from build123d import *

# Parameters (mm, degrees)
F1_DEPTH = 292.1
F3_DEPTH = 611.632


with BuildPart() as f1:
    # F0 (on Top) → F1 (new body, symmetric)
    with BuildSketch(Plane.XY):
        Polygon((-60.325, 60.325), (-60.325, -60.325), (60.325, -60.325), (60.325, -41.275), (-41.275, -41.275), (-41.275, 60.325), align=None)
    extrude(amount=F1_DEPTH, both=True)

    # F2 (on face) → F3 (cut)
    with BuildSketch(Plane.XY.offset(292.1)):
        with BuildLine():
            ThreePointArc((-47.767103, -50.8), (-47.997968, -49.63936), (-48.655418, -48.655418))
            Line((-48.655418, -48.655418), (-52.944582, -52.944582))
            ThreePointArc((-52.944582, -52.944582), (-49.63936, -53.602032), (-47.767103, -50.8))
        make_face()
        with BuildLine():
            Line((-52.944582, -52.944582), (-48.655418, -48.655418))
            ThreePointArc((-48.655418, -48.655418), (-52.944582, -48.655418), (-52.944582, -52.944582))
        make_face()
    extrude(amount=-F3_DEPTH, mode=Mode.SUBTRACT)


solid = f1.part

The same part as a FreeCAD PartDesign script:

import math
import FreeCAD as App
import Part
import Sketcher

V = App.Vector
Q = App.Units.Quantity

doc = App.newDocument("Part")
body = doc.addObject("PartDesign::Body", "Body")

sketch1 = body.newObject("Sketcher::SketchObject", "Sketch")
sketch1.AttachmentSupport = (doc.getObject("XY_Plane"), [""])
sketch1.MapMode = "FlatFace"
sketch1.addGeometry(Part.LineSegment(V(-60, 60, 0), V(-60, -60, 0)), False)
sketch1.addGeometry(Part.LineSegment(V(-60, -60, 0), V(60, -60, 0)), False)
sketch1.addGeometry(Part.LineSegment(V(60, -60, 0), V(60, -41, 0)), False)
sketch1.addGeometry(Part.LineSegment(V(60, -41, 0), V(-41, -41, 0)), False)
sketch1.addGeometry(Part.LineSegment(V(-41, -41, 0), V(-41, 60, 0)), False)
sketch1.addGeometry(Part.LineSegment(V(-41, 60, 0), V(-60, 60, 0)), False)
sketch1.addConstraint(Sketcher.Constraint("Coincident", 0, 2, 1, 1))
sketch1.addConstraint(Sketcher.Constraint("Coincident", 1, 2, 2, 1))
sketch1.addConstraint(Sketcher.Constraint("Coincident", 2, 2, 3, 1))
sketch1.addConstraint(Sketcher.Constraint("Coincident", 3, 2, 4, 1))
sketch1.addConstraint(Sketcher.Constraint("Coincident", 4, 2, 5, 1))
sketch1.addConstraint(Sketcher.Constraint("Coincident", 5, 2, 0, 1))
sketch1.addConstraint(Sketcher.Constraint("Vertical", 0))
sketch1.addConstraint(Sketcher.Constraint("Horizontal", 1))
sketch1.addConstraint(Sketcher.Constraint("Vertical", 2))
sketch1.addConstraint(Sketcher.Constraint("Horizontal", 3))
sketch1.addConstraint(Sketcher.Constraint("Vertical", 4))
sketch1.addConstraint(Sketcher.Constraint("Horizontal", 5))
sketch1.addConstraint(Sketcher.Constraint("Symmetric", 1, 2, 5, 2, -1, 1))
sketch1.addConstraint(Sketcher.Constraint("Equal", 1, 0))
sketch1.addConstraint(Sketcher.Constraint("Equal", 5, 2))
sketch1.addConstraint(Sketcher.Constraint("DistanceX", 3, 2, 3, 1, Q("4 in")))
sketch1.addConstraint(Sketcher.Constraint("DistanceX", 1, 1, 1, 2, Q("4.75 in")))
pad1 = body.newObject("PartDesign::Pad", "Pad")
pad1.Profile = sketch1
pad1.Length = Q("23 in")
pad1.Midplane = True

sketch2 = body.newObject("Sketcher::SketchObject", "Sketch001")
sketch2.AttachmentSupport = (doc.getObject("XY_Plane"), [""])
sketch2.MapMode = "FlatFace"
sketch2.AttachmentOffset = App.Placement(V(0, 0, 11.5 * 25.4), App.Rotation())
sketch2.addGeometry(Part.ArcOfCircle(Part.Circle(V(-50.8, -50.8, 0), V(0, 0, 1), 3), math.radians(0), math.radians(45)), False)
sketch2.addGeometry(Part.ArcOfCircle(Part.Circle(V(-50.8, -50.8, 0), V(0, 0, 1), 3), math.radians(45), math.radians(225)), False)
sketch2.addGeometry(Part.ArcOfCircle(Part.Circle(V(-50.8, -50.8, 0), V(0, 0, 1), 3), math.radians(-135), math.radians(0)), False)
sketch2.addConstraint(Sketcher.Constraint("Tangent", 0, 2, 1, 1))
sketch2.addConstraint(Sketcher.Constraint("Tangent", 1, 2, 2, 1))
sketch2.addConstraint(Sketcher.Constraint("Tangent", 2, 2, 0, 1))
sketch2.addConstraint(Sketcher.Constraint("Horizontal", 1, 3, 2, 2))
sketch2.addConstraint(Sketcher.Constraint("DistanceY", 0, 3, -1, 1, Q("1.9999999 in")))
sketch2.addConstraint(Sketcher.Constraint("DistanceX", 1, 3, -1, 1, Q("2 in")))
sketch2.addConstraint(Sketcher.Constraint("Radius", 0, Q("3.032888 mm")))
sketch2.addConstraint(Sketcher.Constraint("DistanceX", 1, 2, -1, 1, Q("52.944582 mm")))
sketch2.addConstraint(Sketcher.Constraint("DistanceY", 0, 3, 0, 2, Q("2.144578 mm")))
pocket1 = body.newObject("PartDesign::Pocket", "Pocket")
pocket1.Profile = sketch2
pocket1.Length = Q("24.08 in")

doc.recompute()
